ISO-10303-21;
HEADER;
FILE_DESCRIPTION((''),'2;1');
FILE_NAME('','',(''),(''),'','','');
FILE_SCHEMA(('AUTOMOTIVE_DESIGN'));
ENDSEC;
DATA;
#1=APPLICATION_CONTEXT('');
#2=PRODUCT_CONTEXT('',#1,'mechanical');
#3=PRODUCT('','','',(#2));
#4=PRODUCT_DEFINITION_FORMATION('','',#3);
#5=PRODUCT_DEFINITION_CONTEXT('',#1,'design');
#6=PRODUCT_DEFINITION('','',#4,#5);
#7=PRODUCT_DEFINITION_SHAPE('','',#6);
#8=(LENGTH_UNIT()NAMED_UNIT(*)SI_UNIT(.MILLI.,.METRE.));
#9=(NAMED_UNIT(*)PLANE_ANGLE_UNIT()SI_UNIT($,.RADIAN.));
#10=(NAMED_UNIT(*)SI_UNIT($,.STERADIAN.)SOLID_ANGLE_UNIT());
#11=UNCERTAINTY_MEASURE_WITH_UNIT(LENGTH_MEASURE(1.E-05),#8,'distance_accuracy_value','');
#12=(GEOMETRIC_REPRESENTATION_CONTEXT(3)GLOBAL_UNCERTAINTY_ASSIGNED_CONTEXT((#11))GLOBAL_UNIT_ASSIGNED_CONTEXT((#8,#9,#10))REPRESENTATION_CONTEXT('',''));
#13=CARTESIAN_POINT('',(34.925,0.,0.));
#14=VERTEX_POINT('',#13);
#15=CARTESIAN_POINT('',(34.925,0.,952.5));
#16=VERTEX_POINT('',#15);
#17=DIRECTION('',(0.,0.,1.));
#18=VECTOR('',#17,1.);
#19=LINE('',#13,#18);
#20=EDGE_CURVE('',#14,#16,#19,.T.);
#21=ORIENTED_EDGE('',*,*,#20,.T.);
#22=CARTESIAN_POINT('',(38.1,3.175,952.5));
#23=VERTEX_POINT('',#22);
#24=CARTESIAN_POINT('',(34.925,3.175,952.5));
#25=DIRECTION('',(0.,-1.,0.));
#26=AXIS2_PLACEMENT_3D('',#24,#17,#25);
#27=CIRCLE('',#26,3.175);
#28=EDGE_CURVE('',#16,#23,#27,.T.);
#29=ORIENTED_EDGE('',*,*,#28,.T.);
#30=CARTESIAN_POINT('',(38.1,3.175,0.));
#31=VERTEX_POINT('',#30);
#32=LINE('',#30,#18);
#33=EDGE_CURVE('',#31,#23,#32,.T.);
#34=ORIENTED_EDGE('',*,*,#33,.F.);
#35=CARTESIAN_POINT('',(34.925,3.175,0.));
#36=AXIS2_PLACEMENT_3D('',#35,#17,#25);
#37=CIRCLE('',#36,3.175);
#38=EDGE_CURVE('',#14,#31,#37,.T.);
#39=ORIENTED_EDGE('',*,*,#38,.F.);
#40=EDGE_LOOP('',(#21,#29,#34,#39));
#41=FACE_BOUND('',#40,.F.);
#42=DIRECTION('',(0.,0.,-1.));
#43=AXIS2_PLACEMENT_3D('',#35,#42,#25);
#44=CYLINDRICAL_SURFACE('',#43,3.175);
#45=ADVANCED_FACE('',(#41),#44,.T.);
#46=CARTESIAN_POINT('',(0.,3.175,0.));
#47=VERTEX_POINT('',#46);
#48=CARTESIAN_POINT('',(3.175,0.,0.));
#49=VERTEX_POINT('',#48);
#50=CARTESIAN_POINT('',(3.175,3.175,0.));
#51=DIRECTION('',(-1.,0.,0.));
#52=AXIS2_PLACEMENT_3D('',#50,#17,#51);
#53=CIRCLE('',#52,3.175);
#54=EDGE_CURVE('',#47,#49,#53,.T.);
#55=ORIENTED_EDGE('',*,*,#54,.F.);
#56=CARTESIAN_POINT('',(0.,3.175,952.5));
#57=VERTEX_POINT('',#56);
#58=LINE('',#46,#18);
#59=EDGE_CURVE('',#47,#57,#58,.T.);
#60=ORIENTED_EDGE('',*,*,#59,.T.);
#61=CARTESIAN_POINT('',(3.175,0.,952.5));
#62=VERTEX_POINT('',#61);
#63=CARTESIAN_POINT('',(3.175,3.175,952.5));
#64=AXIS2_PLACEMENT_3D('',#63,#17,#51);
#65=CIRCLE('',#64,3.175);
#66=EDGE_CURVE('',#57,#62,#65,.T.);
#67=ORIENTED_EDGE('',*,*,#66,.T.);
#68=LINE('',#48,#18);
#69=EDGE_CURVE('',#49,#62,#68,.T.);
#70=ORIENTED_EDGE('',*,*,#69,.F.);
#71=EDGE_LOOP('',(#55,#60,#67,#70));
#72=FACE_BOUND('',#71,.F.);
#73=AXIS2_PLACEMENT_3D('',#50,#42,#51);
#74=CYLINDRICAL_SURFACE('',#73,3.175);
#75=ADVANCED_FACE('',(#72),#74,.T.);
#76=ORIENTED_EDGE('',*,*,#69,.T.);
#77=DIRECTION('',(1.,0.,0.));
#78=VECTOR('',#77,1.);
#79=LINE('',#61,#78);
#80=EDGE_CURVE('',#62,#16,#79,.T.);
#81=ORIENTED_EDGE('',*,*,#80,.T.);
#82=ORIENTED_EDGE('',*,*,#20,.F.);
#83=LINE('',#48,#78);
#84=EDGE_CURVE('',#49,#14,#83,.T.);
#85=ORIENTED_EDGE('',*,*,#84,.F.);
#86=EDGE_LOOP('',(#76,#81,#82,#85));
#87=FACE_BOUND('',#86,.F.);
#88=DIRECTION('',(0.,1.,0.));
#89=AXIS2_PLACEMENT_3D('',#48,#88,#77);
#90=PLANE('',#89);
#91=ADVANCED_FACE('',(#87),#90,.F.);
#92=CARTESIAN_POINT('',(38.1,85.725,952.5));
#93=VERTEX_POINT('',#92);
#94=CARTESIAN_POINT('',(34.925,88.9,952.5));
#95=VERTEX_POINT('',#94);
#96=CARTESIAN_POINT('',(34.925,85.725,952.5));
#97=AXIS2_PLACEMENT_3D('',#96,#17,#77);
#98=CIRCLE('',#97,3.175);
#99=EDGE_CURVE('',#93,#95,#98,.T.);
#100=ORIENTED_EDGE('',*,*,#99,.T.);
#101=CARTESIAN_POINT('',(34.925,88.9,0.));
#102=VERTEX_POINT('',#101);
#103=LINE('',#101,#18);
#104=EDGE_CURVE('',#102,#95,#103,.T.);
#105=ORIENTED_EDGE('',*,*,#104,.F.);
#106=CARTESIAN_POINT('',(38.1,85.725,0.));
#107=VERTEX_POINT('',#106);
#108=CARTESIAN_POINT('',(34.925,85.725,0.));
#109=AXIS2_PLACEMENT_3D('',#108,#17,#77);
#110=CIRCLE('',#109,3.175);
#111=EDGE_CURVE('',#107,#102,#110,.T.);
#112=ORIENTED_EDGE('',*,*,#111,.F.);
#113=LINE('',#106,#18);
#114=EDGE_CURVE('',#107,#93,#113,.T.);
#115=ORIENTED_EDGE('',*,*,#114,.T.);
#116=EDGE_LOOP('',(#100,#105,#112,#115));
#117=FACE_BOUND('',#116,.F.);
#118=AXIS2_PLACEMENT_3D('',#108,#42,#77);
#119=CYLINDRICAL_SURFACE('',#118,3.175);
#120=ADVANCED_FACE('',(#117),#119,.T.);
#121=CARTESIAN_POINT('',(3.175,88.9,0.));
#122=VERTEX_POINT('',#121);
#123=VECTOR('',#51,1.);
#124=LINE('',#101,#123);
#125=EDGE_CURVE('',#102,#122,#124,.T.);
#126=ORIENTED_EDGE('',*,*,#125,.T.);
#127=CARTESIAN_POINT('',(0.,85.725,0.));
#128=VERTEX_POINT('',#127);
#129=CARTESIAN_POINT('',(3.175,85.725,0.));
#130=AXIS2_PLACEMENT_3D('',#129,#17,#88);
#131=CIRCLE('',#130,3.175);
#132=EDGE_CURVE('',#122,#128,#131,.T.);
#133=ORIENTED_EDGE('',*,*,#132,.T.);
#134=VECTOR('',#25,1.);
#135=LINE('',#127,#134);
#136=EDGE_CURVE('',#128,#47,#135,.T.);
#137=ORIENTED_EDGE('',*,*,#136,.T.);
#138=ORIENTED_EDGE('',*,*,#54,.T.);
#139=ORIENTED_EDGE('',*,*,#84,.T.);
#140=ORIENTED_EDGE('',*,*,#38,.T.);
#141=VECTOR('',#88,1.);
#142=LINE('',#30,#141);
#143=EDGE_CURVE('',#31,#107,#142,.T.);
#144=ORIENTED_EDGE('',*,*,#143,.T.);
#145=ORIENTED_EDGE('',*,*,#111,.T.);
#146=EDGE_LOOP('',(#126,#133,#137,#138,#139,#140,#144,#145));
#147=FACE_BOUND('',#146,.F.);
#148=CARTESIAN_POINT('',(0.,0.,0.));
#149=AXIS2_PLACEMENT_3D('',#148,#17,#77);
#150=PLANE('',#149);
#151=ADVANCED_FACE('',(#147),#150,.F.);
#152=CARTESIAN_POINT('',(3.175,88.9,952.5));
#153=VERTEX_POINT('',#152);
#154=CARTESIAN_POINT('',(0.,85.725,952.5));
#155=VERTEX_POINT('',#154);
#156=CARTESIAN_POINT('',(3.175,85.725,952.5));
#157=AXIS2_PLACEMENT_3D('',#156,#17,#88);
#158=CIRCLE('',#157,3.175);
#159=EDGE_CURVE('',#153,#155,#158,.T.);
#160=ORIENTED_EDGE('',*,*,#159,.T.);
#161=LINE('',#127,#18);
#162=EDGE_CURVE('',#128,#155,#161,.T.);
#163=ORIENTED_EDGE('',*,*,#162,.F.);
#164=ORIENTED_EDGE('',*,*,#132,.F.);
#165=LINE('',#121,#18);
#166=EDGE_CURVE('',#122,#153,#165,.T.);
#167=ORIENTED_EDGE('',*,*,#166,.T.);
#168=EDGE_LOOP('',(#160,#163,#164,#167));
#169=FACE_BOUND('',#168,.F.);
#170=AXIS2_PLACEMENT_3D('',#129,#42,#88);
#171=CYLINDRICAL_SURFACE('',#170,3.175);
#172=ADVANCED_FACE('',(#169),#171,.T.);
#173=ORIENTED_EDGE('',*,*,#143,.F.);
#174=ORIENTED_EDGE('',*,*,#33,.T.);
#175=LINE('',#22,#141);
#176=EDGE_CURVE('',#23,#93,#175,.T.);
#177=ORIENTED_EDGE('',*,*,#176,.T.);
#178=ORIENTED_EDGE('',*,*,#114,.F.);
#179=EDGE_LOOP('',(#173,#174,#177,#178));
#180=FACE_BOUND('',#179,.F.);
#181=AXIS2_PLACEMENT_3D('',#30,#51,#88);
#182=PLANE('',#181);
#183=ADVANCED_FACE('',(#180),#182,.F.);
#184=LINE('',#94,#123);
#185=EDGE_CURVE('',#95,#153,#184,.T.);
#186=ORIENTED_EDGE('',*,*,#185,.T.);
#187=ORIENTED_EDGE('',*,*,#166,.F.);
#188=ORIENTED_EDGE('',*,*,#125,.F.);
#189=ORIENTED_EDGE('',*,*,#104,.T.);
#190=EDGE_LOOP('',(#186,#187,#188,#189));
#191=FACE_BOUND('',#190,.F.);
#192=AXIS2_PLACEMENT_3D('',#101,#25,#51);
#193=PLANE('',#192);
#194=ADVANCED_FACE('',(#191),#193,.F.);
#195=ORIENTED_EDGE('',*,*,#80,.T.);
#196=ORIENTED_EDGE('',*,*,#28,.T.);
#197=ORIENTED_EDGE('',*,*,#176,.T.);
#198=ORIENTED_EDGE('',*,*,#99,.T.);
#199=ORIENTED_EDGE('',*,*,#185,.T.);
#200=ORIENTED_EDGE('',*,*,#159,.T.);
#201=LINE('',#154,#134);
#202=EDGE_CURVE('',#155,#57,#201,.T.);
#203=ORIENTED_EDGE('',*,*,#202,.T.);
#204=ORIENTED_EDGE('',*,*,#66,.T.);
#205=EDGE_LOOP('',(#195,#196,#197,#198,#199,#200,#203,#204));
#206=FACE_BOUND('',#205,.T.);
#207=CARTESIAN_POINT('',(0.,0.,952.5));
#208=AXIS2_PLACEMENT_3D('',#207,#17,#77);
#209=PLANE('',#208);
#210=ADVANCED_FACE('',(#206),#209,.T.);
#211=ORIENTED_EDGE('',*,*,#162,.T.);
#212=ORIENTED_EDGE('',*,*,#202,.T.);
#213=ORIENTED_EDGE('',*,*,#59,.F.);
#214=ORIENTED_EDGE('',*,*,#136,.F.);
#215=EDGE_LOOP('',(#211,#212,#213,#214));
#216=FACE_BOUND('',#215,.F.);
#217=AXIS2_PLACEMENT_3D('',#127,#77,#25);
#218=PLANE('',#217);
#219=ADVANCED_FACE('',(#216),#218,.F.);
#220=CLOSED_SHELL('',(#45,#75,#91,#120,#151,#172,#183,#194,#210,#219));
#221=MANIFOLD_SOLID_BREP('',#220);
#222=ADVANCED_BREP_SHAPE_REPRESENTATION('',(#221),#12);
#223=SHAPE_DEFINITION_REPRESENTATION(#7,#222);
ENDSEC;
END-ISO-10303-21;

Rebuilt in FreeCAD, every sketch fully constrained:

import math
import FreeCAD as App
import Part
import Sketcher

V = App.Vector
Q = App.Units.Quantity

doc = App.newDocument("Part")
body = doc.addObject("PartDesign::Body", "Body")

# Sketch on XY plane
sketch1 = body.newObject("Sketcher::SketchObject", "Sketch")
sketch1.AttachmentSupport = (doc.getObject("XY_Plane"), [""])
sketch1.MapMode = "FlatFace"
sketch1.addGeometry([
    Part.ArcOfCircle(Part.Circle(V(3.2, 3.2, 0), V(0, 0, 1), 3.2), math.radians(180), math.radians(270)),  # 0
    Part.LineSegment(V(3.2, 0, 0), V(34.9, 0, 0)),  # 1
    Part.ArcOfCircle(Part.Circle(V(34.9, 3.2, 0), V(0, 0, 1), 3.2), math.radians(-90), math.radians(0)),  # 2
    Part.LineSegment(V(38.1, 3.2, 0), V(38.1, 85.7, 0)),  # 3
    Part.ArcOfCircle(Part.Circle(V(34.9, 85.7, 0), V(0, 0, 1), 3.2), math.radians(0), math.radians(90)),  # 4
    Part.LineSegment(V(34.9, 88.9, 0), V(3.2, 88.9, 0)),  # 5
    Part.ArcOfCircle(Part.Circle(V(3.2, 85.7, 0), V(0, 0, 1), 3.2), math.radians(90), math.radians(180)),  # 6
    Part.LineSegment(V(0, 85.7, 0), V(0, 3.2, 0)),  # 7
], False)
sketch1.addConstraint([
    Sketcher.Constraint("Tangent", 0, 2, 1, 1),
    Sketcher.Constraint("Tangent", 1, 2, 2, 1),
    Sketcher.Constraint("Tangent", 2, 2, 3, 1),
    Sketcher.Constraint("Tangent", 3, 2, 4, 1),
    Sketcher.Constraint("Tangent", 4, 2, 5, 1),
    Sketcher.Constraint("Tangent", 5, 2, 6, 1),
    Sketcher.Constraint("Tangent", 6, 2, 7, 1),
    Sketcher.Constraint("Tangent", 7, 2, 0, 1),
    Sketcher.Constraint("Horizontal", 1),
    Sketcher.Constraint("Vertical", 3),
    Sketcher.Constraint("Horizontal", 5),
    Sketcher.Constraint("Vertical", 7),
    Sketcher.Constraint("Equal", 0, 2),
    Sketcher.Constraint("Equal", 2, 4),
    Sketcher.Constraint("Equal", 4, 6),
    Sketcher.Constraint("PointOnObject", 0, 2, -1),
    Sketcher.Constraint("PointOnObject", 6, 2, -2),
    Sketcher.Constraint("Radius", 0, Q("0.125 in")),
    Sketcher.Constraint("DistanceX", -1, 1, 2, 2, Q("1.5 in")),
    Sketcher.Constraint("DistanceY", -1, 1, 4, 2, Q("3.5 in")),
])
pad1 = body.newObject("PartDesign::Pad", "Pad")
pad1.Profile = sketch1
pad1.Length = Q("37.5 in")

doc.recompute()
